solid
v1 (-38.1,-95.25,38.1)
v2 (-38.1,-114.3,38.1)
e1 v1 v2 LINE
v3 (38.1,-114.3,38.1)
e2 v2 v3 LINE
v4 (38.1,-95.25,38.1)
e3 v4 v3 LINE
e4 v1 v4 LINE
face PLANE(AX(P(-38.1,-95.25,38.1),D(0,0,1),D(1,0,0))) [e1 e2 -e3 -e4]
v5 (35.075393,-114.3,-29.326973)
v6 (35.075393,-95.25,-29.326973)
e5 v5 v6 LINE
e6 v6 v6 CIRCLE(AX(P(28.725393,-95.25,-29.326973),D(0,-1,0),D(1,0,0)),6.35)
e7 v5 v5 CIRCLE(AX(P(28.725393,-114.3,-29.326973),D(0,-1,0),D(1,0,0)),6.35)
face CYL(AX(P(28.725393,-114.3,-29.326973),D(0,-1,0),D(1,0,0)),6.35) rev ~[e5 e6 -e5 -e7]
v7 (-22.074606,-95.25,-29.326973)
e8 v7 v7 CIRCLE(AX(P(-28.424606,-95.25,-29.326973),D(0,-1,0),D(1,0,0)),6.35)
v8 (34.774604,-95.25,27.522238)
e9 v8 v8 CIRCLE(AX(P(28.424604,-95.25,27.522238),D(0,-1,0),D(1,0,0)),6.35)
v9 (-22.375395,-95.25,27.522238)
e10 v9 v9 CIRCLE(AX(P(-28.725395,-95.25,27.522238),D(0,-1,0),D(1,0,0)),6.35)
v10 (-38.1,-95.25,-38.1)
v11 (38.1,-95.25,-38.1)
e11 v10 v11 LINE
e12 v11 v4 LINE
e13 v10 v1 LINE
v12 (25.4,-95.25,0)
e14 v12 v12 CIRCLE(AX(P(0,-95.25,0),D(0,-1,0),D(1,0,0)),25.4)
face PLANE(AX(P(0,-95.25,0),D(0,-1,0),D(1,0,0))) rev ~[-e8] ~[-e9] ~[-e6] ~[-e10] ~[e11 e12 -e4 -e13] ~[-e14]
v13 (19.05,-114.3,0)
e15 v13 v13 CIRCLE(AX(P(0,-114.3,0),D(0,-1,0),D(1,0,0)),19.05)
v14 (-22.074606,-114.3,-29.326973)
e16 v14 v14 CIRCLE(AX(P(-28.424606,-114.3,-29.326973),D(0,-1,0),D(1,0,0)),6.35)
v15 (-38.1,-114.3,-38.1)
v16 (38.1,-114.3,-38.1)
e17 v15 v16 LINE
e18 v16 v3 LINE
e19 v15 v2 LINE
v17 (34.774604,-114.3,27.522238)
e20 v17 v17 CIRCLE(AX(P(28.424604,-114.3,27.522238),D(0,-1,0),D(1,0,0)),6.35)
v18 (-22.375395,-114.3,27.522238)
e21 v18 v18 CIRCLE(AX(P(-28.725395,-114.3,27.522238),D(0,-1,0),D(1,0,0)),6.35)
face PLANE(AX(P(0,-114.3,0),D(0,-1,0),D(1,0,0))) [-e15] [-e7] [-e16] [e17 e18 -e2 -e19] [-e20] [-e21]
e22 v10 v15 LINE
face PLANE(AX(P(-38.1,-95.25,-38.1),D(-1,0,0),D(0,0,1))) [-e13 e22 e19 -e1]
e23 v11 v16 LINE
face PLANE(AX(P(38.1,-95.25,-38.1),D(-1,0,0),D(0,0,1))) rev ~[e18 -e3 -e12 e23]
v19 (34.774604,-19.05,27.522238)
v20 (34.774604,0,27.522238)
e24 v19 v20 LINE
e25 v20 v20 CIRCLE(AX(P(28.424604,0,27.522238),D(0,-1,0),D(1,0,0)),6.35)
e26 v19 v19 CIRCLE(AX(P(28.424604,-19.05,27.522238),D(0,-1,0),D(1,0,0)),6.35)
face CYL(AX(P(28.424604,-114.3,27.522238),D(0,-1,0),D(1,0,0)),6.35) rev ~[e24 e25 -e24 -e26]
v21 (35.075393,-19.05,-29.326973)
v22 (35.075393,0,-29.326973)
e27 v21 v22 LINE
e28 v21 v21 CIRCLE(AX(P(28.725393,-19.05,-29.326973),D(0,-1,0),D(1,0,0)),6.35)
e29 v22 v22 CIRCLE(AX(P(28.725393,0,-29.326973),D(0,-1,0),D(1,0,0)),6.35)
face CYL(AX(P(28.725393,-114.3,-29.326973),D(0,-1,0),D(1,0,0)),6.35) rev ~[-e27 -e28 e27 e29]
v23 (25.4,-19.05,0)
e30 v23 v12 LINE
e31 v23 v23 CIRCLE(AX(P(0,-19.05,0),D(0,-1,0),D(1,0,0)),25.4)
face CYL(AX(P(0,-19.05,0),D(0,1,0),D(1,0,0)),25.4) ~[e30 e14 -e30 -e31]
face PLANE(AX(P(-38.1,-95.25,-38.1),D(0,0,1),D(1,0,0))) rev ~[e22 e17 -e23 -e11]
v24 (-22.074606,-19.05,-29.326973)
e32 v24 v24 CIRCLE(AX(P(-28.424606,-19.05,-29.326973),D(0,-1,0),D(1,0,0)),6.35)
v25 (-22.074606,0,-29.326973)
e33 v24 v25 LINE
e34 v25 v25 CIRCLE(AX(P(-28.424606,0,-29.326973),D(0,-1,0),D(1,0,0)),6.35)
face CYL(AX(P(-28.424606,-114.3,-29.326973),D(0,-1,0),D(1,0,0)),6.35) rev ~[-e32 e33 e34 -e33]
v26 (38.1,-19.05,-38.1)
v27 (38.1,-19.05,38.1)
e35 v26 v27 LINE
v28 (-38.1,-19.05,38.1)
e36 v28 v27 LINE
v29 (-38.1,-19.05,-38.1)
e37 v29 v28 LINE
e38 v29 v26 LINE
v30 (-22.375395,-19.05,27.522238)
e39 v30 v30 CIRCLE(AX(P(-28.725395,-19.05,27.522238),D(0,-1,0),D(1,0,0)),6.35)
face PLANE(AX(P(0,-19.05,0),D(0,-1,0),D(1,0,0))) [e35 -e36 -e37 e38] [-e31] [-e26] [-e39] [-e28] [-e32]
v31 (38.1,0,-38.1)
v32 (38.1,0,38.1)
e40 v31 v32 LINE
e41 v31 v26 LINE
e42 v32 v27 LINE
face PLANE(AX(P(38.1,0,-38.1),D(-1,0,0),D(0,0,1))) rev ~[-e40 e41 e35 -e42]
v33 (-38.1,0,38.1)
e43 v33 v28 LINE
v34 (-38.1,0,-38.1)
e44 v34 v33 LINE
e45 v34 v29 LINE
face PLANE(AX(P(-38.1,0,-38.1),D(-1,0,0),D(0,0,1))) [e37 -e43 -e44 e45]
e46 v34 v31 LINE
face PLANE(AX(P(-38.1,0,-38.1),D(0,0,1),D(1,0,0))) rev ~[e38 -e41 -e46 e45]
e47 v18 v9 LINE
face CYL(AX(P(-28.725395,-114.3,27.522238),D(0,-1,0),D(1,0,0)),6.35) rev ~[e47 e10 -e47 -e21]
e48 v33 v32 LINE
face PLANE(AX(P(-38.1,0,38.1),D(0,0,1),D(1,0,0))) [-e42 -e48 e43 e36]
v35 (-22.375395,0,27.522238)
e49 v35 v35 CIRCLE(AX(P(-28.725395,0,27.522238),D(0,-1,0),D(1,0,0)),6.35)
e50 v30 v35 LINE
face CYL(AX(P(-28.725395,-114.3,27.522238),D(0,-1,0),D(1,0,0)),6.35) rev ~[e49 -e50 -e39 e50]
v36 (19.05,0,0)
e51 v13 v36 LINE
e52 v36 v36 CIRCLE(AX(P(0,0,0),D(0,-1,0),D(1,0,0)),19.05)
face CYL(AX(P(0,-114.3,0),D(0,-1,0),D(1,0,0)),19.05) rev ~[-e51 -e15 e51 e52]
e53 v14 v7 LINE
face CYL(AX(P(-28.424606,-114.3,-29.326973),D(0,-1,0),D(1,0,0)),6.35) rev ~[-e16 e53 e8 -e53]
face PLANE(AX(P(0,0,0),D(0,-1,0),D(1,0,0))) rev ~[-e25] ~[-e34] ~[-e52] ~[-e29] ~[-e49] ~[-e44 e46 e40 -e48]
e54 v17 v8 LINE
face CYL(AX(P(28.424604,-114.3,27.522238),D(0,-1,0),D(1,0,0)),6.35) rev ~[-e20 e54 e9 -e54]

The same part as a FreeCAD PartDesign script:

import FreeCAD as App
import Part
import Sketcher

V = App.Vector
Q = App.Units.Quantity


def add_polygon(sketch, points):
    """Adds a closed chain of lines whose ends are joined by coincident constraints."""
    first, n = sketch.GeometryCount, len(points)
    for a, b in zip(points, points[1:] + points[:1]):
        sketch.addGeometry(Part.LineSegment(App.Vector(*a, 0), App.Vector(*b, 0)), False)
    for i in range(n):
        sketch.addConstraint(Sketcher.Constraint("Coincident", first + i, 2, first + (i + 1) % n, 1))

doc = App.newDocument("Part")
body = doc.addObject("PartDesign::Body", "Body")

sketch1 = body.newObject("Sketcher::SketchObject", "Sketch")
sketch1.AttachmentSupport = (doc.getObject("XZ_Plane"), [""])
sketch1.MapMode = "FlatFace"
add_polygon(sketch1, [(-38, 38), (-38, -38), (38, -38), (38, 38)])
sketch1.addConstraint([
    Sketcher.Constraint("Vertical", 0),
    Sketcher.Constraint("Horizontal", 1),
    Sketcher.Constraint("Vertical", 2),
    Sketcher.Constraint("Horizontal", 3),
    Sketcher.Constraint("Symmetric", 0, 2, 2, 2, -1, 1),
    Sketcher.Constraint("Equal", 3, 0),
    Sketcher.Constraint("DistanceX", 1, 1, 1, 2, Q("3 in")),
])
pad1 = body.newObject("PartDesign::Pad", "Pad")
pad1.Profile = sketch1
pad1.Length = Q("0.75 in")

sketch2 = body.newObject("Sketcher::SketchObject", "Sketch001")
sketch2.AttachmentSupport = (doc.getObject("XZ_Plane"), [""])
sketch2.MapMode = "FlatFace"
sketch2.AttachmentOffset = App.Placement(V(0, 0, 0.75 * 25.4), App.Rotation())
sketch2.addGeometry(Part.Circle(V(0, 0, 0), V(0, 0, 1), 25), False)
sketch2.addConstraint([
    Sketcher.Constraint("Coincident", 0, 3, -1, 1),
    Sketcher.Constraint("Diameter", 0, Q("2 in")),
])
pad2 = body.newObject("PartDesign::Pad", "Pad001")
pad2.Profile = sketch2
pad2.Length = Q("3 in")

sketch3 = body.newObject("Sketcher::SketchObject", "Sketch002")
sketch3.AttachmentSupport = (doc.getObject("XZ_Plane"), [""])
sketch3.MapMode = "FlatFace"
sketch3.AttachmentOffset = App.Placement(V(0, 0, 3.75 * 25.4), App.Rotation())
add_polygon(sketch3, [(-38, 38), (-38, -38), (38, -38), (38, 38)])
sketch3.addConstraint([
    Sketcher.Constraint("Vertical", 0),
    Sketcher.Constraint("Horizontal", 1),
    Sketcher.Constraint("Vertical", 2),
    Sketcher.Constraint("Horizontal", 3),
    Sketcher.Constraint("Symmetric", 0, 2, 2, 2, -1, 1),
    Sketcher.Constraint("Equal", 3, 0),
    Sketcher.Constraint("DistanceX", 1, 1, 1, 2, Q("3 in")),
])
pad3 = body.newObject("PartDesign::Pad", "Pad002")
pad3.Profile = sketch3
pad3.Length = Q("0.75 in")

sketch4 = body.newObject("Sketcher::SketchObject", "Sketch003")
sketch4.AttachmentSupport = (doc.getObject("XZ_Plane"), [""])
sketch4.MapMode = "FlatFace"
sketch4.AttachmentOffset = App.Placement(V(0, 0, 4.5 * 25.4), App.Rotation())
sketch4.addGeometry(Part.Circle(V(0, 0, 0), V(0, 0, 1), 19), False)
sketch4.addConstraint([
    Sketcher.Constraint("Coincident", 0, 3, -1, 1),
    Sketcher.Constraint("Diameter", 0, Q("1.5 in")),
])
pocket1 = body.newObject("PartDesign::Pocket", "Pocket")
pocket1.Profile = sketch4
pocket1.Length = Q("4.5 in")

sketch5 = body.newObject("Sketcher::SketchObject", "Sketch004")
sketch5.AttachmentSupport = (doc.getObject("XZ_Plane"), [""])
sketch5.MapMode = "FlatFace"
sketch5.AttachmentOffset = App.Placement(V(0, 0, 4.5 * 25.4), App.Rotation())
sketch5.addGeometry([
    Part.Circle(V(-29, 28, 0), V(0, 0, 1), 6),
    Part.Circle(V(-28, -29, 0), V(0, 0, 1), 6),
    Part.Circle(V(29, -29, 0), V(0, 0, 1), 6),
    Part.Circle(V(28, 28, 0), V(0, 0, 1), 6),
], False)
sketch5.addConstraint([
    Sketcher.Constraint("Equal", 0, 1),
    Sketcher.Constraint("Equal", 1, 2),
    Sketcher.Constraint("Equal", 2, 3),
    Sketcher.Constraint("Horizontal", 1, 3, 2, 3),
    Sketcher.Constraint("Horizontal", 0, 3, 3, 3),
    Sketcher.Constraint("Diameter", 0, Q("0.5 in")),
    Sketcher.Constraint("DistanceX", 1, 3, 2, 3, Q("2.25 in")),
    Sketcher.Constraint("DistanceX", 0, 3, 3, 3, Q("2.25 in")),
    Sketcher.Constraint("DistanceY", -1, 1, 0, 3, Q("27.522238 mm")),
    Sketcher.Constraint("DistanceX", 0, 3, 1, 3, Q("0.300789 mm")),
    Sketcher.Constraint("DistanceY", 1, 3, 0, 3, Q("56.849211 mm")),
    Sketcher.Constraint("DistanceX", 0, 3, -1, 1, Q("28.725395 mm")),
])
pocket2 = body.newObject("PartDesign::Pocket", "Pocket001")
pocket2.Profile = sketch5
pocket2.Length = Q("4.5 in")

doc.recompute()
